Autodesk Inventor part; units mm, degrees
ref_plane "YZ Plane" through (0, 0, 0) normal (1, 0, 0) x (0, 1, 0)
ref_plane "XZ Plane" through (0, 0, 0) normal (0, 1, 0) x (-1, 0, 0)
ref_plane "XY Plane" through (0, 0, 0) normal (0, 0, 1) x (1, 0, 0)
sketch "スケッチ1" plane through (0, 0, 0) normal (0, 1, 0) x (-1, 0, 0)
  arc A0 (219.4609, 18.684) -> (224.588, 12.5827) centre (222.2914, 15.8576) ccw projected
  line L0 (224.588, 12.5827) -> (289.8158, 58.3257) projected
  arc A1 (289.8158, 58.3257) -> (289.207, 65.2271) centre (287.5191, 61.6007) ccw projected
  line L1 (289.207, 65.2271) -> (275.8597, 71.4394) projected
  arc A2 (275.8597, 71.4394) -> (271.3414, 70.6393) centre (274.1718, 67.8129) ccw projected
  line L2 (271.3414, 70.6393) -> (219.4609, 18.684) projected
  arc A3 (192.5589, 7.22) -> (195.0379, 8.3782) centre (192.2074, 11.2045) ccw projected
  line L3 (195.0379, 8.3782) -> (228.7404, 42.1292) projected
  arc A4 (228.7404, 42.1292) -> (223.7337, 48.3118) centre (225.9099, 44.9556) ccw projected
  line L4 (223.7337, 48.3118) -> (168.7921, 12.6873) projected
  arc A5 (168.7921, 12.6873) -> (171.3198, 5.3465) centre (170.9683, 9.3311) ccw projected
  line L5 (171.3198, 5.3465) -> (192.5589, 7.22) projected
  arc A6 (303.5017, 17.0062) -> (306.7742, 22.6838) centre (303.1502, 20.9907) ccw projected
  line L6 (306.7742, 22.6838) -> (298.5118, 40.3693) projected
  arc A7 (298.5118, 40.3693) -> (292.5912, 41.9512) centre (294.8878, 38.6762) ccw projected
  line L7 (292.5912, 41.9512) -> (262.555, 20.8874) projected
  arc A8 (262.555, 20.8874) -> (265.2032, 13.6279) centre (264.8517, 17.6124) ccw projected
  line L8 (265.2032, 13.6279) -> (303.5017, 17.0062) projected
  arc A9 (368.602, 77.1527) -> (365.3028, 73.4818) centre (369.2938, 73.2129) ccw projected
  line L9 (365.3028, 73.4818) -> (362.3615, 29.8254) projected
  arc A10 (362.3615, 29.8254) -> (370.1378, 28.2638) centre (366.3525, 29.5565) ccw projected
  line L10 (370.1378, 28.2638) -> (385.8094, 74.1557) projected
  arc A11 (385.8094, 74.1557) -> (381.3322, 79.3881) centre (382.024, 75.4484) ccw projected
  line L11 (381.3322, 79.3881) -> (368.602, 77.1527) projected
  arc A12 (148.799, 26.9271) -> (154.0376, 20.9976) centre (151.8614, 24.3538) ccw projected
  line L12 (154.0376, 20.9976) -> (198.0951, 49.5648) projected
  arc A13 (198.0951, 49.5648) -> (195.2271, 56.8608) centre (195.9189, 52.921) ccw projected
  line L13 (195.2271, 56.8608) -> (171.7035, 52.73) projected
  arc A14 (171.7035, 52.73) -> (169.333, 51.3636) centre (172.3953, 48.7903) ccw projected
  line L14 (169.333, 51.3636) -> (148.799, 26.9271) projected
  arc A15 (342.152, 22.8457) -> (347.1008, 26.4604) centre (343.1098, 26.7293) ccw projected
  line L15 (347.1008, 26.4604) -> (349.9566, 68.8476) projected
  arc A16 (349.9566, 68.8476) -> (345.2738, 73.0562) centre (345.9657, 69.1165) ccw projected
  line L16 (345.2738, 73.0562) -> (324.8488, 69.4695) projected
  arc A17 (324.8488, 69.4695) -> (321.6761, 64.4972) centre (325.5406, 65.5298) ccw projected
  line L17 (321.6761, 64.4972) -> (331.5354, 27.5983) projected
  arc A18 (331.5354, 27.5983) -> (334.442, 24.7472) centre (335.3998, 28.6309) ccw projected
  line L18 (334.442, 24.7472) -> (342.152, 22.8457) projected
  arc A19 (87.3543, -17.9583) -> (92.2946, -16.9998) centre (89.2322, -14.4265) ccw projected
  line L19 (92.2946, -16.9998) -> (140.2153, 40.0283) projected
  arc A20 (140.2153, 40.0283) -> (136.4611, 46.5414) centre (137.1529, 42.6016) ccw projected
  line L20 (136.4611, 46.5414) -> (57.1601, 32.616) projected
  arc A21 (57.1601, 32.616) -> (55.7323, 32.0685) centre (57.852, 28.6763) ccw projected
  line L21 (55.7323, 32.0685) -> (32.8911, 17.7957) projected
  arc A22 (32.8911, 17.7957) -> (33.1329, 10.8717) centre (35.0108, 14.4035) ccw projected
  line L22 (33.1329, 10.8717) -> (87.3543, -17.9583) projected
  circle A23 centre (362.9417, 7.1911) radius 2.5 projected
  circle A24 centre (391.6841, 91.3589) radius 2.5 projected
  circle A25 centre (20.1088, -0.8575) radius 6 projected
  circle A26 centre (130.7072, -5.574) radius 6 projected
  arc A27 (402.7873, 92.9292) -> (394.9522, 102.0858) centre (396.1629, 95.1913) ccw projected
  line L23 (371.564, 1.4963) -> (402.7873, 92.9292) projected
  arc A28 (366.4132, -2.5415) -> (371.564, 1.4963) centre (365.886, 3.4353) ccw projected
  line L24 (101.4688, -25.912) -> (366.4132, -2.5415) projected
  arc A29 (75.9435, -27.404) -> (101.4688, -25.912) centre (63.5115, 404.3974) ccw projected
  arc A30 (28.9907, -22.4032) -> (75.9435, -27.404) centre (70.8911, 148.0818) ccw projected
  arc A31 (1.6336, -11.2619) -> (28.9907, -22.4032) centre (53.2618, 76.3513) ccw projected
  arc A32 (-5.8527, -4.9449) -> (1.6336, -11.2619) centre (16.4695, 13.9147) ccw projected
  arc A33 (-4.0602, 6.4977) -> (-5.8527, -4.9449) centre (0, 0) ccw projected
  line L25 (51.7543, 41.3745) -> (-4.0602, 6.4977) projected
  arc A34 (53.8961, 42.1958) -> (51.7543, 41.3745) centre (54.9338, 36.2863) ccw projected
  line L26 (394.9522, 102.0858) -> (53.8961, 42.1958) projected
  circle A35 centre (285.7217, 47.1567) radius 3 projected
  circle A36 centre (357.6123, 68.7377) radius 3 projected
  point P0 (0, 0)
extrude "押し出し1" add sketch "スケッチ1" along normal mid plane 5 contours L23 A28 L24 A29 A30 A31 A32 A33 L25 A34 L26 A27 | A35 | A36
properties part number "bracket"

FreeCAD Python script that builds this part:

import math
import FreeCAD as App
import Part
import Sketcher

doc = App.newDocument("Part")
body = doc.addObject("PartDesign::Body", "Body")

sketch1 = doc.addObject("Sketcher::SketchObject", "Sketch")
body.addObject(sketch1)
sketch1.AttachmentSupport = (doc.XZ_Plane, [""])
sketch1.MapMode = "FlatFace"
sketch1.addGeometry([
    Part.LineSegment(App.Vector(-371.564, 1.4963, 0), App.Vector(-402.7873, 92.9292, 0)),
    Part.ArcOfCircle(Part.Circle(App.Vector(-396.1629, 95.1913, 0), App.Vector(0, 0, 1), 6.999984), math.radians(80.040194), math.radians(198.854009)),
    Part.LineSegment(App.Vector(-394.9522, 102.0858, 0), App.Vector(-53.8961, 42.1958, 0)),
    Part.ArcOfCircle(Part.Circle(App.Vector(-54.9338, 36.2863, 0), App.Vector(0, 0, 1), 5.999918), math.radians(57.999678), math.radians(80.040479)),
    Part.LineSegment(App.Vector(-51.7543, 41.3745, 0), App.Vector(4.0602, 6.4977, 0)),
    Part.ArcOfCircle(Part.Circle(App.Vector(0, 0, 0), App.Vector(0, 0, 1), 7.66194), math.radians(-40.194203), math.radians(58.000086)),
    Part.ArcOfCircle(Part.Circle(App.Vector(-16.4695, 13.9147, 0), App.Vector(0, 0, 1), 29.222682), math.radians(-59.490287), math.radians(-40.193828)),
    Part.ArcOfCircle(Part.Circle(App.Vector(-53.261152, 76.349991, 0), App.Vector(0, 0, 1), 101.691925), math.radians(-76.192153), math.radians(-59.490192)),
    Part.ArcOfCircle(Part.Circle(App.Vector(-70.89148, 148.083967, 0), App.Vector(0, 0, 1), 175.560672), math.radians(-91.648999), math.radians(-76.19204)),
    Part.ArcOfCircle(Part.Circle(App.Vector(-63.515375, 404.308556, 0), App.Vector(0, 0, 1), 431.891409), math.radians(-95.041498), math.radians(-91.648973)),
    Part.LineSegment(App.Vector(-101.4688, -25.912, 0), App.Vector(-366.4132, -2.5415, 0)),
    Part.ArcOfCircle(Part.Circle(App.Vector(-365.886, 3.4353, 0), App.Vector(0, 0, 1), 6.000007), math.radians(-161.145298), math.radians(-95.040884)),
    Part.Circle(App.Vector(-20.1088, -0.8575, 0), App.Vector(0, 0, 1), 6),
    Part.Circle(App.Vector(-130.7072, -5.574, 0), App.Vector(0, 0, 1), 6),
    Part.ArcOfCircle(Part.Circle(App.Vector(-89.2322, -14.4265, 0), App.Vector(0, 0, 1), 4.000015), math.radians(-139.960045), math.radians(-61.999891)),
    Part.LineSegment(App.Vector(-87.3543, -17.9583, 0), App.Vector(-33.1329, 10.8717, 0)),
    Part.ArcOfCircle(Part.Circle(App.Vector(-35.0108, 14.4035, 0), App.Vector(0, 0, 1), 4.000019), math.radians(-61.999891), math.radians(57.999779)),
    Part.LineSegment(App.Vector(-32.8911, 17.7957, 0), App.Vector(-55.7323, 32.0685, 0)),
    Part.ArcOfCircle(Part.Circle(App.Vector(-57.852, 28.6763, 0), App.Vector(0, 0, 1), 3.999995), math.radians(57.999779), math.radians(80.039151)),
    Part.LineSegment(App.Vector(-57.1601, 32.616, 0), App.Vector(-136.4611, 46.5414, 0)),
    Part.ArcOfCircle(Part.Circle(App.Vector(-137.1529, 42.6016, 0), App.Vector(0, 0, 1), 4.000021), math.radians(80.040809), math.radians(220.039955)),
    Part.LineSegment(App.Vector(-140.2153, 40.0283, 0), App.Vector(-92.2946, -16.9998, 0)),
    Part.ArcOfCircle(Part.Circle(App.Vector(-192.2074, 11.2045, 0), App.Vector(0, 0, 1), 3.999974), math.radians(-135.04254), math.radians(-95.041402)),
    Part.LineSegment(App.Vector(-192.5589, 7.22, 0), App.Vector(-171.3198, 5.3465, 0)),
    Part.ArcOfCircle(Part.Circle(App.Vector(-170.9683, 9.3311, 0), App.Vector(0, 0, 1), 3.999991), math.radians(-95.041276), math.radians(57.040145)),
    Part.LineSegment(App.Vector(-168.7921, 12.6873, 0), App.Vector(-223.7337, 48.3118, 0)),
    Part.ArcOfCircle(Part.Circle(App.Vector(-225.9099, 44.9556, 0), App.Vector(0, 0, 1), 4.000033), math.radians(57.040145), math.radians(224.958473)),
    Part.LineSegment(App.Vector(-228.7404, 42.1292, 0), App.Vector(-195.0379, 8.3782, 0)),
    Part.ArcOfCircle(Part.Circle(App.Vector(-303.1502, 20.9907, 0), App.Vector(0, 0, 1), 3.999974), math.radians(154.958444), math.radians(264.958598)),
    Part.LineSegment(App.Vector(-303.5017, 17.0062, 0), App.Vector(-265.2032, 13.6279, 0)),
    Part.ArcOfCircle(Part.Circle(App.Vector(-264.8517, 17.6124, 0), App.Vector(0, 0, 1), 4.000057), math.radians(-95.041402), math.radians(54.958695)),
    Part.LineSegment(App.Vector(-262.555, 20.8874, 0), App.Vector(-292.5912, 41.9512, 0)),
    Part.ArcOfCircle(Part.Circle(App.Vector(-294.8878, 38.6762, 0), App.Vector(0, 0, 1), 3.999995), math.radians(54.959868), math.radians(154.958444)),
    Part.LineSegment(App.Vector(-298.5118, 40.3693, 0), App.Vector(-306.7742, 22.6838, 0)),
    Part.Circle(App.Vector(-362.9417, 7.1911, 0), App.Vector(0, 0, 1), 2.5),
    Part.ArcOfCircle(Part.Circle(App.Vector(-151.8614, 24.3538, 0), App.Vector(0, 0, 1), 4.000021), math.radians(-122.959855), math.radians(40.039955)),
    Part.LineSegment(App.Vector(-148.799, 26.9271, 0), App.Vector(-169.333, 51.3636, 0)),
    Part.ArcOfCircle(Part.Circle(App.Vector(-172.3953, 48.7903, 0), App.Vector(0, 0, 1), 3.999978), math.radians(40.040876), math.radians(80.040562)),
    Part.LineSegment(App.Vector(-171.7035, 52.73, 0), App.Vector(-195.2271, 56.8608, 0)),
    Part.ArcOfCircle(Part.Circle(App.Vector(-195.9189, 52.921, 0), App.Vector(0, 0, 1), 3.999991), math.radians(80.040809), math.radians(237.040145)),
    Part.LineSegment(App.Vector(-198.0951, 49.5648, 0), App.Vector(-154.0376, 20.9976, 0)),
    Part.ArcOfCircle(Part.Circle(App.Vector(-222.2914, 15.8576, 0), App.Vector(0, 0, 1), 4.000033), math.radians(-125.040955), math.radians(44.958473)),
    Part.LineSegment(App.Vector(-219.4609, 18.684, 0), App.Vector(-271.3414, 70.6393, 0)),
    Part.ArcOfCircle(Part.Circle(App.Vector(-274.1718, 67.8129, 0), App.Vector(0, 0, 1), 4.000064), math.radians(44.959485), math.radians(114.958917)),
    Part.LineSegment(App.Vector(-275.8597, 71.4394, 0), App.Vector(-289.207, 65.2271, 0)),
    Part.ArcOfCircle(Part.Circle(App.Vector(-287.5191, 61.6007, 0), App.Vector(0, 0, 1), 4.000057), math.radians(114.959521), math.radians(234.958695)),
    Part.LineSegment(App.Vector(-289.8158, 58.3257, 0), App.Vector(-224.588, 12.5827, 0)),
    Part.ArcOfCircle(Part.Circle(App.Vector(-343.1098, 26.7293, 0), App.Vector(0, 0, 1), 3.999966), math.radians(-176.145431), math.radians(-76.145799)),
    Part.LineSegment(App.Vector(-342.152, 22.8457, 0), App.Vector(-334.442, 24.7472, 0)),
    Part.ArcOfCircle(Part.Circle(App.Vector(-335.3998, 28.6309, 0), App.Vector(0, 0, 1), 3.999981), math.radians(-76.146142), math.radians(-14.96039)),
    Part.LineSegment(App.Vector(-331.5354, 27.5983, 0), App.Vector(-321.6761, 64.4972, 0)),
    Part.ArcOfCircle(Part.Circle(App.Vector(-325.5406, 65.5298, 0), App.Vector(0, 0, 1), 3.999978), math.radians(-14.96002), math.radians(80.040562)),
    Part.LineSegment(App.Vector(-324.8488, 69.4695, 0), App.Vector(-345.2738, 73.0562, 0)),
    Part.ArcOfCircle(Part.Circle(App.Vector(-345.9657, 69.1165, 0), App.Vector(0, 0, 1), 3.999949), math.radians(80.039151), math.radians(183.854665)),
    Part.LineSegment(App.Vector(-349.9566, 68.8476, 0), App.Vector(-347.1008, 26.4604, 0)),
    Part.ArcOfCircle(Part.Circle(App.Vector(-369.2938, 73.2129, 0), App.Vector(0, 0, 1), 4.000076), math.radians(3.854569), math.radians(80.040809)),
    Part.LineSegment(App.Vector(-368.602, 77.1527, 0), App.Vector(-381.3322, 79.3881, 0)),
    Part.ArcOfCircle(Part.Circle(App.Vector(-382.024, 75.4484, 0), App.Vector(0, 0, 1), 4.000041), math.radians(80.040562), math.radians(198.854845)),
    Part.LineSegment(App.Vector(-385.8094, 74.1557, 0), App.Vector(-370.1378, 28.2638, 0)),
    Part.ArcOfCircle(Part.Circle(App.Vector(-366.3525, 29.5565, 0), App.Vector(0, 0, 1), 4.000049), math.radians(-161.144692), math.radians(3.854569)),
    Part.LineSegment(App.Vector(-362.3615, 29.8254, 0), App.Vector(-365.3028, 73.4818, 0)),
    Part.Circle(App.Vector(-391.6841, 91.3589, 0), App.Vector(0, 0, 1), 2.5),
], False)
sketch1.addConstraint([
    Sketcher.Constraint("Coincident", 0, 2, 1, 2),
    Sketcher.Constraint("Coincident", 1, 1, 2, 1),
    Sketcher.Constraint("Coincident", 2, 2, 3, 2),
    Sketcher.Constraint("Coincident", 3, 1, 4, 1),
    Sketcher.Constraint("Coincident", 4, 2, 5, 2),
    Sketcher.Constraint("Coincident", 5, 1, 6, 2),
    Sketcher.Constraint("Coincident", 6, 1, 7, 2),
    Sketcher.Constraint("Coincident", 7, 1, 8, 2),
    Sketcher.Constraint("Coincident", 8, 1, 9, 2),
    Sketcher.Constraint("Coincident", 9, 1, 10, 1),
    Sketcher.Constraint("Coincident", 10, 2, 11, 2),
    Sketcher.Constraint("Coincident", 11, 1, 0, 1),
    Sketcher.Constraint("Coincident", 14, 2, 15, 1),
    Sketcher.Constraint("Coincident", 15, 2, 16, 1),
    Sketcher.Constraint("Coincident", 16, 2, 17, 1),
    Sketcher.Constraint("Coincident", 17, 2, 18, 1),
    Sketcher.Constraint("Coincident", 18, 2, 19, 1),
    Sketcher.Constraint("Coincident", 19, 2, 20, 1),
    Sketcher.Constraint("Coincident", 20, 2, 21, 1),
    Sketcher.Constraint("Coincident", 21, 2, 14, 1),
    Sketcher.Constraint("Coincident", 22, 2, 23, 1),
    Sketcher.Constraint("Coincident", 23, 2, 24, 1),
    Sketcher.Constraint("Coincident", 24, 2, 25, 1),
    Sketcher.Constraint("Coincident", 25, 2, 26, 1),
    Sketcher.Constraint("Coincident", 26, 2, 27, 1),
    Sketcher.Constraint("Coincident", 27, 2, 22, 1),
    Sketcher.Constraint("Coincident", 28, 2, 29, 1),
    Sketcher.Constraint("Coincident", 29, 2, 30, 1),
    Sketcher.Constraint("Coincident", 30, 2, 31, 1),
    Sketcher.Constraint("Coincident", 31, 2, 32, 1),
    Sketcher.Constraint("Coincident", 32, 2, 33, 1),
    Sketcher.Constraint("Coincident", 33, 2, 28, 1),
    Sketcher.Constraint("Coincident", 35, 2, 36, 1),
    Sketcher.Constraint("Coincident", 36, 2, 37, 1),
    Sketcher.Constraint("Coincident", 37, 2, 38, 1),
    Sketcher.Constraint("Coincident", 38, 2, 39, 1),
    Sketcher.Constraint("Coincident", 39, 2, 40, 1),
    Sketcher.Constraint("Coincident", 40, 2, 35, 1),
    Sketcher.Constraint("Coincident", 41, 2, 42, 1),
    Sketcher.Constraint("Coincident", 42, 2, 43, 1),
    Sketcher.Constraint("Coincident", 43, 2, 44, 1),
    Sketcher.Constraint("Coincident", 44, 2, 45, 1),
    Sketcher.Constraint("Coincident", 45, 2, 46, 1),
    Sketcher.Constraint("Coincident", 46, 2, 41, 1),
    Sketcher.Constraint("Coincident", 47, 2, 48, 1),
    Sketcher.Constraint("Coincident", 48, 2, 49, 1),
    Sketcher.Constraint("Coincident", 49, 2, 50, 1),
    Sketcher.Constraint("Coincident", 50, 2, 51, 1),
    Sketcher.Constraint("Coincident", 51, 2, 52, 1),
    Sketcher.Constraint("Coincident", 52, 2, 53, 1),
    Sketcher.Constraint("Coincident", 53, 2, 54, 1),
    Sketcher.Constraint("Coincident", 54, 2, 47, 1),
    Sketcher.Constraint("Coincident", 55, 2, 56, 1),
    Sketcher.Constraint("Coincident", 56, 2, 57, 1),
    Sketcher.Constraint("Coincident", 57, 2, 58, 1),
    Sketcher.Constraint("Coincident", 58, 2, 59, 1),
    Sketcher.Constraint("Coincident", 59, 2, 60, 1),
    Sketcher.Constraint("Coincident", 60, 2, 55, 1),
    Sketcher.Constraint("Coincident", 5, 3, -1, 1),
    Sketcher.Constraint("Diameter", 12, 12.0),
    Sketcher.Constraint("Diameter", 13, 12.0),
    Sketcher.Constraint("Diameter", 34, 5.0),
    Sketcher.Constraint("Diameter", 61, 5.0),
    Sketcher.Constraint("Radius", 1, 7.0),
    Sketcher.Constraint("Radius", 3, 6.0),
    Sketcher.Constraint("Radius", 11, 6.0),
    Sketcher.Constraint("Radius", 14, 4.0),
    Sketcher.Constraint("Radius", 16, 4.0),
    Sketcher.Constraint("Radius", 18, 4.0),
    Sketcher.Constraint("Radius", 20, 4.0),
    Sketcher.Constraint("Radius", 22, 4.0),
    Sketcher.Constraint("Radius", 24, 4.0),
    Sketcher.Constraint("Radius", 26, 4.0),
    Sketcher.Constraint("Radius", 28, 4.0),
    Sketcher.Constraint("Radius", 30, 4.0),
    Sketcher.Constraint("Radius", 32, 4.0),
    Sketcher.Constraint("Radius", 35, 4.0),
    Sketcher.Constraint("Radius", 37, 4.0),
    Sketcher.Constraint("Radius", 39, 4.0),
    Sketcher.Constraint("Radius", 41, 4.0),
    Sketcher.Constraint("Radius", 43, 4.0),
    Sketcher.Constraint("Radius", 45, 4.0),
    Sketcher.Constraint("Radius", 47, 4.0),
    Sketcher.Constraint("Radius", 49, 4.0),
    Sketcher.Constraint("Radius", 51, 4.0),
    Sketcher.Constraint("Radius", 53, 4.0),
    Sketcher.Constraint("Radius", 55, 4.0),
    Sketcher.Constraint("Radius", 57, 4.0),
    Sketcher.Constraint("Radius", 59, 4.0),
    Sketcher.Constraint("Radius", 5, 7.662),
    Sketcher.Constraint("Radius", 7, 101.692),
    Sketcher.Constraint("Radius", 6, 29.2227),
    Sketcher.Constraint("Radius", 8, 175.5607),
    Sketcher.Constraint("Radius", 9, 431.8914),
    Sketcher.Constraint("DistanceY", -1, 1, 7, 3, 76.35),
    Sketcher.Constraint("DistanceX", 26, 3, -1, 1, 225.91),
    Sketcher.Constraint("DistanceX", 18, 2, -1, 1, 57.16),
    Sketcher.Constraint("DistanceY", -1, 1, 22, 2, 7.22),
    Sketcher.Constraint("DistanceY", -1, 1, 37, 2, 52.73),
    Sketcher.Constraint("Distance", 21, 74.489),
    Sketcher.Constraint("Distance", 31, 36.686),
    Sketcher.Constraint("Distance", 42, 73.423),
    Sketcher.Constraint("Distance", 48, 7.941),
    Sketcher.Constraint("Distance", 56, 12.925),
    Sketcher.Constraint("Distance", 58, 48.494),
    Sketcher.Constraint("DistanceX", 1, 3, -1, 1, 396.163),
    Sketcher.Constraint("DistanceY", -1, 1, 8, 3, 148.084),
    Sketcher.Constraint("DistanceX", 11, 3, -1, 1, 365.886),
    Sketcher.Constraint("DistanceY", 13, 3, -1, 1, 5.574),
    Sketcher.Constraint("DistanceX", 18, 3, -1, 1, 57.852),
    Sketcher.Constraint("DistanceX", 20, 3, -1, 1, 137.153),
    Sketcher.Constraint("DistanceY", -1, 1, 24, 3, 9.331),
    Sketcher.Constraint("DistanceY", -1, 1, 34, 3, 7.191),
    Sketcher.Constraint("DistanceX", 39, 3, -1, 1, 195.919),
    Sketcher.Constraint("DistanceY", -1, 1, 39, 3, 52.921),
    Sketcher.Constraint("DistanceY", -1, 1, 43, 3, 67.813),
    Sketcher.Constraint("DistanceX", 45, 3, -1, 1, 287.519),
    Sketcher.Constraint("DistanceY", -1, 1, 49, 3, 28.631),
    Sketcher.Constraint("DistanceY", -1, 1, 55, 3, 73.213),
    Sketcher.Constraint("DistanceX", 57, 3, -1, 1, 382.024),
    Sketcher.Constraint("DistanceX", 61, 3, -1, 1, 391.684),
    Sketcher.Constraint("DistanceY", -1, 1, 61, 3, 91.359),
    Sketcher.Constraint("DistanceX", 2, 2, -1, 1, 53.896),
    Sketcher.Constraint("DistanceY", 6, 1, -1, 1, 11.262),
    Sketcher.Constraint("DistanceY", 8, 1, -1, 1, 27.404),
    Sketcher.Constraint("DistanceY", 9, 1, -1, 1, 25.912),
    Sketcher.Constraint("DistanceX", 11, 1, -1, 1, 371.564),
    Sketcher.Constraint("DistanceX", 15, 2, -1, 1, 33.133),
    Sketcher.Constraint("DistanceX", 16, 2, -1, 1, 32.891),
    Sketcher.Constraint("DistanceY", -1, 1, 18, 2, 32.616),
    Sketcher.Constraint("DistanceX", 19, 2, -1, 1, 136.461),
    Sketcher.Constraint("DistanceX", 22, 2, -1, 1, 192.559),
    Sketcher.Constraint("DistanceX", 24, 2, -1, 1, 168.792),
    Sketcher.Constraint("DistanceX", 27, 2, -1, 1, 195.038),
    Sketcher.Constraint("DistanceY", -1, 1, 29, 2, 13.628),
    Sketcher.Constraint("DistanceX", 30, 2, -1, 1, 262.555),
    Sketcher.Constraint("DistanceX", 35, 2, -1, 1, 148.799),
    Sketcher.Constraint("DistanceY", -1, 1, 35, 2, 26.927),
    Sketcher.Constraint("DistanceX", 36, 2, -1, 1, 169.333),
    Sketcher.Constraint("DistanceX", 38, 2, -1, 1, 195.227),
    Sketcher.Constraint("DistanceX", 39, 2, -1, 1, 198.095),
    Sketcher.Constraint("DistanceX", 41, 2, -1, 1, 219.461),
    Sketcher.Constraint("DistanceY", -1, 1, 41, 2, 18.684),
    Sketcher.Constraint("DistanceX", 44, 2, -1, 1, 289.207),
    Sketcher.Constraint("DistanceY", -1, 1, 44, 2, 65.227),
    Sketcher.Constraint("DistanceX", 46, 2, -1, 1, 224.588),
    Sketcher.Constraint("DistanceX", 47, 2, -1, 1, 342.152),
    Sketcher.Constraint("DistanceX", 48, 2, -1, 1, 334.442),
    Sketcher.Constraint("DistanceX", 50, 2, -1, 1, 321.676),
    Sketcher.Constraint("DistanceX", 55, 2, -1, 1, 368.602),
    Sketcher.Constraint("DistanceY", -1, 1, 56, 2, 79.388),
    Sketcher.Constraint("Distance", 0, 96.6171),
    Sketcher.Constraint("Distance", 2, 346.2746),
    Sketcher.Constraint("Distance", 4, 65.8153),
    Sketcher.Constraint("Distance", 10, 265.9731),
    Sketcher.Constraint("Distance", 15, 61.4095),
    Sketcher.Constraint("Distance", 17, 26.9339),
    Sketcher.Constraint("Distance", 19, 80.5144),
    Sketcher.Constraint("Distance", 23, 21.3216),
    Sketcher.Constraint("Distance", 25, 65.4804),
    Sketcher.Constraint("Distance", 27, 47.6968),
    Sketcher.Constraint("Distance", 29, 38.4472),
    Sketcher.Constraint("Distance", 33, 19.5204),
    Sketcher.Constraint("Distance", 36, 31.9185),
    Sketcher.Constraint("Distance", 38, 23.8835),
    Sketcher.Constraint("Distance", 40, 52.5086),
    Sketcher.Constraint("Distance", 44, 14.7222),
    Sketcher.Constraint("Distance", 46, 79.6686),
    Sketcher.Constraint("Distance", 50, 38.1934),
    Sketcher.Constraint("Distance", 52, 20.7375),
    Sketcher.Constraint("Distance", 54, 42.4833),
    Sketcher.Constraint("Distance", 60, 43.7554),
    Sketcher.Constraint("DistanceY", -1, 1, 1, 3, 95.1913),
    Sketcher.Constraint("DistanceX", 3, 3, -1, 1, 54.9338),
    Sketcher.Constraint("DistanceY", -1, 1, 3, 3, 36.2863),
    Sketcher.Constraint("DistanceX", 6, 3, -1, 1, 16.4695),
    Sketcher.Constraint("DistanceX", 9, 3, -1, 1, 63.5154),
    Sketcher.Constraint("DistanceY", -1, 1, 11, 3, 3.4353),
    Sketcher.Constraint("DistanceX", 12, 3, -1, 1, 20.1088),
    Sketcher.Constraint("DistanceY", 12, 3, -1, 1, 0.8575),
    Sketcher.Constraint("DistanceX", 13, 3, -1, 1, 130.7072),
    Sketcher.Constraint("DistanceX", 14, 3, -1, 1, 89.2322),
    Sketcher.Constraint("DistanceY", 14, 3, -1, 1, 14.4265),
    Sketcher.Constraint("DistanceX", 16, 3, -1, 1, 35.0108),
    Sketcher.Constraint("DistanceY", -1, 1, 16, 3, 14.4035),
    Sketcher.Constraint("DistanceX", 22, 3, -1, 1, 192.2074),
    Sketcher.Constraint("DistanceX", 24, 3, -1, 1, 170.9683),
    Sketcher.Constraint("DistanceY", -1, 1, 26, 3, 44.9556),
    Sketcher.Constraint("DistanceX", 28, 3, -1, 1, 303.1502),
    Sketcher.Constraint("DistanceY", -1, 1, 28, 3, 20.9907),
    Sketcher.Constraint("DistanceX", 30, 3, -1, 1, 264.8517),
    Sketcher.Constraint("DistanceY", -1, 1, 30, 3, 17.6124),
    Sketcher.Constraint("DistanceX", 32, 3, -1, 1, 294.8878),
    Sketcher.Constraint("DistanceY", -1, 1, 32, 3, 38.6762),
    Sketcher.Constraint("DistanceX", 34, 3, -1, 1, 362.9417),
    Sketcher.Constraint("DistanceX", 35, 3, -1, 1, 151.8614),
    Sketcher.Constraint("DistanceX", 41, 3, -1, 1, 222.2914),
    Sketcher.Constraint("DistanceX", 43, 3, -1, 1, 274.1718),
    Sketcher.Constraint("DistanceX", 47, 3, -1, 1, 343.1098),
    Sketcher.Constraint("DistanceY", -1, 1, 47, 3, 26.7293),
    Sketcher.Constraint("DistanceX", 51, 3, -1, 1, 325.5406),
    Sketcher.Constraint("DistanceY", -1, 1, 51, 3, 65.5298),
    Sketcher.Constraint("DistanceX", 53, 3, -1, 1, 345.9657),
    Sketcher.Constraint("DistanceY", -1, 1, 53, 3, 69.1165),
    Sketcher.Constraint("DistanceX", 55, 3, -1, 1, 369.2938),
    Sketcher.Constraint("DistanceX", 59, 3, -1, 1, 366.3525),
    Sketcher.Constraint("DistanceY", -1, 1, 59, 3, 29.5565),
    Sketcher.Constraint("DistanceX", 3, 1, -1, 1, 51.7543),
    Sketcher.Constraint("DistanceX", -1, 1, 5, 1, 5.8527),
    Sketcher.Constraint("DistanceX", 7, 1, -1, 1, 28.9907),
    Sketcher.Constraint("DistanceX", 20, 2, -1, 1, 140.2153),
    Sketcher.Constraint("DistanceX", 32, 2, -1, 1, 298.5118),
    Sketcher.Constraint("DistanceX", 51, 2, -1, 1, 324.8488),
    Sketcher.Constraint("DistanceX", 53, 2, -1, 1, 349.9566),
    Sketcher.Constraint("DistanceX", 57, 2, -1, 1, 385.8094),
    Sketcher.Constraint("DistanceX", 59, 2, -1, 1, 362.3615),
])
pad1 = doc.addObject("PartDesign::Pad", "Pad")
body.addObject(pad1)
pad1.Profile = sketch1
pad1.Length = 5
pad1.Midplane = True

doc.recompute()
